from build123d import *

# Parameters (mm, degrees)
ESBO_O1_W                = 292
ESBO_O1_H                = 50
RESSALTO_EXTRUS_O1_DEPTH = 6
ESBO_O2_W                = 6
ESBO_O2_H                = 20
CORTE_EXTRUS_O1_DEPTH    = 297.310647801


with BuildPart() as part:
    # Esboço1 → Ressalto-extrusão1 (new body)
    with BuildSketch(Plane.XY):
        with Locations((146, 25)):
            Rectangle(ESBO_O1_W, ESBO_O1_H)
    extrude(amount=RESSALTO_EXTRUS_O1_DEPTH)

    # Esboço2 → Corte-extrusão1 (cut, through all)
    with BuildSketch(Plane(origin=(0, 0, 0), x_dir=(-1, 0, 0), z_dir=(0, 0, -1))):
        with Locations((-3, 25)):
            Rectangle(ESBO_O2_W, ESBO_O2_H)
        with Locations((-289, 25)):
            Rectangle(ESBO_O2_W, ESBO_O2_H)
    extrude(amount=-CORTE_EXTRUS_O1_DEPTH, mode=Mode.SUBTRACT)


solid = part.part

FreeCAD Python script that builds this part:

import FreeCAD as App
import Part
import Sketcher
Q = App.Units.Quantity


def add_polygon(sketch, points):
    """Adds a closed chain of lines whose ends are joined by coincident constraints."""
    first, n = sketch.GeometryCount, len(points)
    for a, b in zip(points, points[1:] + points[:1]):
        sketch.addGeometry(Part.LineSegment(App.Vector(*a, 0), App.Vector(*b, 0)), False)
    for i in range(n):
        sketch.addConstraint(Sketcher.Constraint("Coincident", first + i, 2, first + (i + 1) % n, 1))

doc = App.newDocument("Part")
body = doc.addObject("PartDesign::Body", "Body")

sketch1 = body.newObject("Sketcher::SketchObject", "Sketch")
sketch1.AttachmentSupport = (doc.getObject("XY_Plane"), [""])
sketch1.MapMode = "FlatFace"
add_polygon(sketch1, [(0, 50), (0, 0), (292, 0), (292, 50)])
sketch1.addConstraint([
    Sketcher.Constraint("Vertical", 0),
    Sketcher.Constraint("Horizontal", 1),
    Sketcher.Constraint("Vertical", 2),
    Sketcher.Constraint("Horizontal", 3),
    Sketcher.Constraint("Coincident", 0, 2, -1, 1),
    Sketcher.Constraint("DistanceX", 1, 1, 1, 2, Q("292 mm")),
    Sketcher.Constraint("DistanceY", 0, 2, 0, 1, Q("50 mm")),
])
pad1 = body.newObject("PartDesign::Pad", "Pad")
pad1.Profile = sketch1
pad1.Length = 6

sketch2 = body.newObject("Sketcher::SketchObject", "Sketch001")
sketch2.AttachmentSupport = (doc.getObject("XY_Plane"), [""])
sketch2.MapMode = "FlatFace"
add_polygon(sketch2, [(6, 35), (6, 15), (0, 15), (0, 35)])
add_polygon(sketch2, [(292, 35), (292, 15), (286, 15), (286, 35)])
sketch2.addConstraint([
    Sketcher.Constraint("Vertical", 0),
    Sketcher.Constraint("Horizontal", 1),
    Sketcher.Constraint("Vertical", 2),
    Sketcher.Constraint("Horizontal", 3),
    Sketcher.Constraint("Vertical", 4),
    Sketcher.Constraint("Horizontal", 5),
    Sketcher.Constraint("Vertical", 6),
    Sketcher.Constraint("Horizontal", 7),
    Sketcher.Constraint("PointOnObject", 1, 2, -2),
    Sketcher.Constraint("Horizontal", 1, 2, 4, 2),
    Sketcher.Constraint("Horizontal", 3, 2, 6, 2),
    Sketcher.Constraint("Equal", 3, 5),
    Sketcher.Constraint("DistanceX", 1, 2, 1, 1, Q("6 mm")),
    Sketcher.Constraint("DistanceY", 0, 2, 0, 1, Q("20 mm")),
    Sketcher.Constraint("DistanceY", -1, 1, 0, 2, Q("15 mm")),
    Sketcher.Constraint("DistanceX", -1, 1, 4, 2, Q("292 mm")),
])
pocket1 = body.newObject("PartDesign::Pocket", "Pocket")
pocket1.Profile = sketch2
pocket1.Type = "ThroughAll"
pocket1.Reversed = True

doc.recompute()
